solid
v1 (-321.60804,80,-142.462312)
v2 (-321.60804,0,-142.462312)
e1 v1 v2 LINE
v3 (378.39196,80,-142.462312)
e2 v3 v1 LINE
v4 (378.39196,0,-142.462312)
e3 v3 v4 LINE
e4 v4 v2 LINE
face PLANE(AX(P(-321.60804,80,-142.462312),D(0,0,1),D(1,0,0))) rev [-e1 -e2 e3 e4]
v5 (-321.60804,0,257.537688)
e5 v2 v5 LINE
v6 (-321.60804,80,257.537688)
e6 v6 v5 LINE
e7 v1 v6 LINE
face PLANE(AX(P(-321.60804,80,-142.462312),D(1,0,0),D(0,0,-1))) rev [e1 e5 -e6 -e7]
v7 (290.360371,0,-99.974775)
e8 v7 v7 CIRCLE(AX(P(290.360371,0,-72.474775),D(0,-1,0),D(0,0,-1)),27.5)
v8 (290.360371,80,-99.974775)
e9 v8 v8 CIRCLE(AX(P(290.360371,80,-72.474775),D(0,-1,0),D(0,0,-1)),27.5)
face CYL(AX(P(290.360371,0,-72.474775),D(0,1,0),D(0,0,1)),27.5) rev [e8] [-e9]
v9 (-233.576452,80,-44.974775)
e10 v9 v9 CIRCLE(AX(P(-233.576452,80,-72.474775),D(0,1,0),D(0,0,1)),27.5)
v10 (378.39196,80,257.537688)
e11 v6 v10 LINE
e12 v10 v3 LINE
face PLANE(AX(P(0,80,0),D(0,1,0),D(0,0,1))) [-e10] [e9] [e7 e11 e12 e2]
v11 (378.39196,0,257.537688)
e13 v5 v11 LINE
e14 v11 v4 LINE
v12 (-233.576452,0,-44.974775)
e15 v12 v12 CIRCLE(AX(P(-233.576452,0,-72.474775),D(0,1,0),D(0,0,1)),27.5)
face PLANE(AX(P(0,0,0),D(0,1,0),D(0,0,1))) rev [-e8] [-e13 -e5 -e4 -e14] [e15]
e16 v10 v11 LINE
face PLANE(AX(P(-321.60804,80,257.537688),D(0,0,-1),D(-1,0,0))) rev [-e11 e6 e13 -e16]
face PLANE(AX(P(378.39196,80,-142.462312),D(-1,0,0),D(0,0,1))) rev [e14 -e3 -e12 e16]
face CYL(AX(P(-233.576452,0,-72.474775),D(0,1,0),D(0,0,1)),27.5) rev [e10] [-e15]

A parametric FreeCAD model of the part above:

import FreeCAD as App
import Part
import Sketcher
Q = App.Units.Quantity


def add_polygon(sketch, points):
    """Adds a closed chain of lines whose ends are joined by coincident constraints."""
    first, n = sketch.GeometryCount, len(points)
    for a, b in zip(points, points[1:] + points[:1]):
        sketch.addGeometry(Part.LineSegment(App.Vector(*a, 0), App.Vector(*b, 0)), False)
    for i in range(n):
        sketch.addConstraint(Sketcher.Constraint("Coincident", first + i, 2, first + (i + 1) % n, 1))

doc = App.newDocument("Part")
params = doc.addObject("Spreadsheet::Sheet", "Params")
for row, (alias, value) in enumerate([
    ("sketch1_width", "700 mm"),
    ("sketch1_height", "400 mm"),
    ("pad1_length", "80 mm"),
    ("sketch2_diameter", "55 mm"),
    ("pocket1_length", "80 mm"),
    ("sketch3_diameter", "55 mm"),
    ("pocket2_length", "80 mm"),
], start=1):
    params.set(f"A{row}", alias)
    params.set(f"B{row}", "=" + value)
    params.setAlias(f"B{row}", alias)

body = doc.addObject("PartDesign::Body", "Body")

# Sketch on XZ plane
sketch1 = body.newObject("Sketcher::SketchObject", "Sketch")
sketch1.AttachmentSupport = (doc.getObject("XZ_Plane"), [""])
sketch1.MapMode = "FlatFace"
add_polygon(sketch1, [(-322, -142), (-322, 258), (378, 258), (378, -142)])  # lines 0-3
sketch1.addConstraint(Sketcher.Constraint("Vertical", 0))
sketch1.addConstraint(Sketcher.Constraint("Horizontal", 1))
sketch1.addConstraint(Sketcher.Constraint("Vertical", 2))
sketch1.addConstraint(Sketcher.Constraint("Horizontal", 3))
sketch1.addConstraint(Sketcher.Constraint("DistanceX", 1, 1, 1, 2, Q("700 mm")))
sketch1.addConstraint(Sketcher.Constraint("DistanceY", 0, 1, 0, 2, Q("400 mm")))
sketch1.addConstraint(Sketcher.Constraint("DistanceX", 0, 2, -1, 1, Q("321.60804 mm")))
sketch1.addConstraint(Sketcher.Constraint("DistanceY", -1, 1, 0, 2, Q("257.537688 mm")))
sketch1.setExpression("Constraints[8]", "Params.sketch1_width")
sketch1.setExpression("Constraints[9]", "Params.sketch1_height")
pad1 = body.newObject("PartDesign::Pad", "Pad")
pad1.Profile = sketch1
pad1.setExpression("Length", "Params.pad1_length")
pad1.Reversed = True

# Sketch on XZ plane
sketch2 = body.newObject("Sketcher::SketchObject", "Sketch001")
sketch2.AttachmentSupport = (doc.getObject("XZ_Plane"), [""])
sketch2.MapMode = "FlatFace"
sketch2.AttachmentOffset = App.Placement(App.Vector(0, 0, -80), App.Rotation())
sketch2.addGeometry(Part.Circle(App.Vector(-234, -72, 0), App.Vector(0, 0, 1), 28), False)
sketch2.addConstraint(Sketcher.Constraint("Diameter", 0, Q("55 mm")))
sketch2.addConstraint(Sketcher.Constraint("DistanceX", 0, 3, -1, 1, Q("233.576452 mm")))
sketch2.addConstraint(Sketcher.Constraint("DistanceY", 0, 3, -1, 1, Q("72.474775 mm")))
sketch2.setExpression("Constraints[0]", "Params.sketch2_diameter")
pocket1 = body.newObject("PartDesign::Pocket", "Pocket")
pocket1.Profile = sketch2
pocket1.setExpression("Length", "Params.pocket1_length")
pocket1.Reversed = True

# Sketch on XZ plane
sketch3 = body.newObject("Sketcher::SketchObject", "Sketch002")
sketch3.AttachmentSupport = (doc.getObject("XZ_Plane"), [""])
sketch3.MapMode = "FlatFace"
sketch3.AttachmentOffset = App.Placement(App.Vector(0, 0, -80), App.Rotation())
sketch3.addGeometry(Part.Circle(App.Vector(290, -72, 0), App.Vector(0, 0, 1), 28), False)
sketch3.addConstraint(Sketcher.Constraint("Diameter", 0, Q("55 mm")))
sketch3.addConstraint(Sketcher.Constraint("DistanceX", -1, 1, 0, 3, Q("290.360371 mm")))
sketch3.addConstraint(Sketcher.Constraint("DistanceY", 0, 3, -1, 1, Q("72.474775 mm")))
sketch3.setExpression("Constraints[0]", "Params.sketch3_diameter")
pocket2 = body.newObject("PartDesign::Pocket", "Pocket001")
pocket2.Profile = sketch3
pocket2.setExpression("Length", "Params.pocket2_length")
pocket2.Reversed = True

doc.recompute()
